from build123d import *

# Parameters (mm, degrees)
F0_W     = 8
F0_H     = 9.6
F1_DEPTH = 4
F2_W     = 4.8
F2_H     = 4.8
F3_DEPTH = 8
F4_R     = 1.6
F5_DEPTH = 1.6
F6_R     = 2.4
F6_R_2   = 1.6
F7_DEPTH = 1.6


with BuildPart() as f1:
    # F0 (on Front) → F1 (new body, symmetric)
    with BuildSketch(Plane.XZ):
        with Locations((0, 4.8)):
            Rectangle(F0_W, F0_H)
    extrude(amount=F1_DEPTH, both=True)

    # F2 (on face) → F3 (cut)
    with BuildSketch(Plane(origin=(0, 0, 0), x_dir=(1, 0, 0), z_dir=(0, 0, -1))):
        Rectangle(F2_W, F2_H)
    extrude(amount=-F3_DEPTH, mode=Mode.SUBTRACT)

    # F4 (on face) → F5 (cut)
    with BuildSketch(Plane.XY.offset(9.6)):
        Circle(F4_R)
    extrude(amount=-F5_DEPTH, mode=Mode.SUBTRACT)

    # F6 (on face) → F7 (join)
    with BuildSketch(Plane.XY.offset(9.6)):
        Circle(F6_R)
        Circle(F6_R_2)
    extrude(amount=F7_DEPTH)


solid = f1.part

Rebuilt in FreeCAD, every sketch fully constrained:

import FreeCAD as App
import Part
import Sketcher
from FreeCAD import Vector


def add_polygon(sketch, points):
    """Adds a closed chain of lines whose ends are joined by coincident constraints."""
    first, n = sketch.GeometryCount, len(points)
    for a, b in zip(points, points[1:] + points[:1]):
        sketch.addGeometry(Part.LineSegment(App.Vector(*a, 0), App.Vector(*b, 0)), False)
    for i in range(n):
        sketch.addConstraint(Sketcher.Constraint("Coincident", first + i, 2, first + (i + 1) % n, 1))

doc = App.newDocument("Part")
body = doc.addObject("PartDesign::Body", "Body")

sketch1 = doc.addObject("Sketcher::SketchObject", "Sketch")
body.addObject(sketch1)
sketch1.AttachmentSupport = (doc.XZ_Plane, [""])
sketch1.MapMode = "FlatFace"
add_polygon(sketch1, [(-4, 10), (-4, 0), (4, 0), (4, 10)])
sketch1.addConstraint([
    Sketcher.Constraint("Vertical", 0),
    Sketcher.Constraint("Horizontal", 1),
    Sketcher.Constraint("Vertical", 2),
    Sketcher.Constraint("Horizontal", 3),
    Sketcher.Constraint("Symmetric", 0, 2, 1, 2, -1, 1),
    Sketcher.Constraint("DistanceX", 1, 1, 1, 2, 8.0),
    Sketcher.Constraint("DistanceY", 0, 2, 0, 1, 9.6),
])
pad1 = doc.addObject("PartDesign::Pad", "Pad")
body.addObject(pad1)
pad1.Profile = sketch1
pad1.Length = 8
pad1.Midplane = True

sketch2 = doc.addObject("Sketcher::SketchObject", "Sketch001")
body.addObject(sketch2)
sketch2.AttachmentSupport = (doc.XY_Plane, [""])
sketch2.MapMode = "FlatFace"
add_polygon(sketch2, [(-2.4, -2.4), (-2.4, 2.4), (2.4, 2.4), (2.4, -2.4)])
sketch2.addConstraint([
    Sketcher.Constraint("Vertical", 0),
    Sketcher.Constraint("Horizontal", 1),
    Sketcher.Constraint("Vertical", 2),
    Sketcher.Constraint("Horizontal", 3),
    Sketcher.Constraint("Symmetric", 0, 2, 2, 2, -1, 1),
    Sketcher.Constraint("Equal", 3, 0),
    Sketcher.Constraint("DistanceX", 1, 1, 1, 2, 4.8),
])
pocket1 = doc.addObject("PartDesign::Pocket", "Pocket")
body.addObject(pocket1)
pocket1.Profile = sketch2
pocket1.Length = 8
pocket1.Reversed = True

sketch3 = doc.addObject("Sketcher::SketchObject", "Sketch002")
body.addObject(sketch3)
sketch3.AttachmentSupport = (doc.XY_Plane, [""])
sketch3.MapMode = "FlatFace"
sketch3.AttachmentOffset = App.Placement(Vector(0, 0, 9.6), App.Rotation())
sketch3.addGeometry(Part.Circle(Vector(0, 0, 0), Vector(0, 0, 1), 1.6), False)
sketch3.addConstraint([
    Sketcher.Constraint("Coincident", 0, 3, -1, 1),
    Sketcher.Constraint("Diameter", 0, 3.2),
])
pocket2 = doc.addObject("PartDesign::Pocket", "Pocket001")
body.addObject(pocket2)
pocket2.Profile = sketch3
pocket2.Length = 1.6

sketch4 = doc.addObject("Sketcher::SketchObject", "Sketch003")
body.addObject(sketch4)
sketch4.AttachmentSupport = (doc.XY_Plane, [""])
sketch4.MapMode = "FlatFace"
sketch4.AttachmentOffset = App.Placement(Vector(0, 0, 9.6), App.Rotation())
sketch4.addGeometry(Part.Circle(Vector(0, 0, 0), Vector(0, 0, 1), 2.4), False)
sketch4.addConstraint([
    Sketcher.Constraint("Coincident", 0, 3, -1, 1),
    Sketcher.Constraint("Diameter", 0, 4.8),
])
pad2 = doc.addObject("PartDesign::Pad", "Pad001")
body.addObject(pad2)
pad2.Profile = sketch4
pad2.Length = 1.6

doc.recompute()
